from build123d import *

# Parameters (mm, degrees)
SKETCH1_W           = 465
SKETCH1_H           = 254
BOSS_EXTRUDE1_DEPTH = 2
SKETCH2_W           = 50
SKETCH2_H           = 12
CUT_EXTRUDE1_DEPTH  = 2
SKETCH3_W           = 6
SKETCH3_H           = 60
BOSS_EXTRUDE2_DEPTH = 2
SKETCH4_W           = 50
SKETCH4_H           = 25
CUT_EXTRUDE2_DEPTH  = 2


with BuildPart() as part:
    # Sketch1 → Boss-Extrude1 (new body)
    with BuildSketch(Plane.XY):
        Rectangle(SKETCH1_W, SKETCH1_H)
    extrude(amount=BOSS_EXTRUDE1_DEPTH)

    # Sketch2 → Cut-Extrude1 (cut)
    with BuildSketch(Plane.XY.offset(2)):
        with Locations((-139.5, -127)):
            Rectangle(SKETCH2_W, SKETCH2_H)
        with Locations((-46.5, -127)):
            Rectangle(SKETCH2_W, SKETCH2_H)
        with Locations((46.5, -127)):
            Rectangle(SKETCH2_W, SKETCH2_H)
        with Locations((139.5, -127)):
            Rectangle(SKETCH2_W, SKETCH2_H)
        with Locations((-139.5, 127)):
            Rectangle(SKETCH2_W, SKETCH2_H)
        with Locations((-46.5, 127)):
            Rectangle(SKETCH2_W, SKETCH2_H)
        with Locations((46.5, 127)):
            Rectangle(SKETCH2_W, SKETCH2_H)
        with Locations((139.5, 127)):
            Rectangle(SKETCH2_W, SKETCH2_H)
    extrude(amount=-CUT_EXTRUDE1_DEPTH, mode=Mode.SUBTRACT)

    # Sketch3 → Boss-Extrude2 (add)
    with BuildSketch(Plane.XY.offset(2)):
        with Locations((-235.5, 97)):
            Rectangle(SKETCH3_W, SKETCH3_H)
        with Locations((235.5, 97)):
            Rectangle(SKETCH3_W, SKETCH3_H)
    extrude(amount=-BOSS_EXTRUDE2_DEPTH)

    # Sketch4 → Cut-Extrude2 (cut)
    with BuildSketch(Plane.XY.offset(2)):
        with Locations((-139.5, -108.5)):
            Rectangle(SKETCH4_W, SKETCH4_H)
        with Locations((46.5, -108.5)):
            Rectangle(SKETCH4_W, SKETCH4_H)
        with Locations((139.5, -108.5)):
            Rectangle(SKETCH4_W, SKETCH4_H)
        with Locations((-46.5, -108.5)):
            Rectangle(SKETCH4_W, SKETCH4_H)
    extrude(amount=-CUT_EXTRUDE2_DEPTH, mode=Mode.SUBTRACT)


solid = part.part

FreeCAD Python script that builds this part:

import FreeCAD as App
import Part
import Sketcher
from FreeCAD import Vector


def add_polygon(sketch, points):
    """Adds a closed chain of lines whose ends are joined by coincident constraints."""
    first, n = sketch.GeometryCount, len(points)
    for a, b in zip(points, points[1:] + points[:1]):
        sketch.addGeometry(Part.LineSegment(App.Vector(*a, 0), App.Vector(*b, 0)), False)
    for i in range(n):
        sketch.addConstraint(Sketcher.Constraint("Coincident", first + i, 2, first + (i + 1) % n, 1))

doc = App.newDocument("Part")
params = doc.addObject("Spreadsheet::Sheet", "Params")
for row, (alias, value) in enumerate([
    ("sketch1_width", "465 mm"),
    ("sketch1_height", "254 mm"),
    ("pad1_length", "2 mm"),
    ("sketch2_width", "50 mm"),
    ("sketch2_height", "12 mm"),
    ("pocket1_length", "2 mm"),
    ("sketch3_width", "6 mm"),
    ("sketch3_height", "60 mm"),
    ("pad2_length", "2 mm"),
    ("sketch4_width", "50 mm"),
    ("sketch4_height", "25 mm"),
    ("pocket2_length", "2 mm"),
], start=1):
    params.set(f"A{row}", alias)
    params.set(f"B{row}", "=" + value)
    params.setAlias(f"B{row}", alias)

body = doc.addObject("PartDesign::Body", "Body")

# Sketch on XY plane
sketch1 = body.newObject("Sketcher::SketchObject", "Sketch")
sketch1.AttachmentSupport = (doc.getObject("XY_Plane"), [""])
sketch1.MapMode = "FlatFace"
add_polygon(sketch1, [(-232.5, 127), (-232.5, -127), (232.5, -127), (232.5, 127)])  # lines 0-3
sketch1.addConstraint([
    Sketcher.Constraint("Vertical", 0),
    Sketcher.Constraint("Horizontal", 1),
    Sketcher.Constraint("Vertical", 2),
    Sketcher.Constraint("Horizontal", 3),
    Sketcher.Constraint("Symmetric", 0, 2, 2, 2, -1, 1),
    Sketcher.Constraint("DistanceX", 1, 1, 1, 2, 465.0),
    Sketcher.Constraint("DistanceY", 0, 2, 0, 1, 254.0),
])
sketch1.setExpression("Constraints[9]", "Params.sketch1_width")
sketch1.setExpression("Constraints[10]", "Params.sketch1_height")
pad1 = body.newObject("PartDesign::Pad", "Pad")
pad1.Profile = sketch1
pad1.setExpression("Length", "Params.pad1_length")

# Sketch on XY plane
sketch2 = body.newObject("Sketcher::SketchObject", "Sketch001")
sketch2.AttachmentSupport = (doc.getObject("XY_Plane"), [""])
sketch2.MapMode = "FlatFace"
sketch2.AttachmentOffset = App.Placement(Vector(0, 0, 2), App.Rotation())
add_polygon(sketch2, [(-164.5, -121), (-164.5, -133), (-114.5, -133), (-114.5, -121)])  # lines 0-3
add_polygon(sketch2, [(-71.5, -121), (-71.5, -133), (-21.5, -133), (-21.5, -121)])  # lines 4-7
add_polygon(sketch2, [(21.5, -121), (21.5, -133), (71.5, -133), (71.5, -121)])  # lines 8-11
add_polygon(sketch2, [(114.5, -121), (114.5, -133), (164.5, -133), (164.5, -121)])  # lines 12-15
add_polygon(sketch2, [(-164.5, 133), (-164.5, 121), (-114.5, 121), (-114.5, 133)])  # lines 16-19
add_polygon(sketch2, [(-71.5, 133), (-71.5, 121), (-21.5, 121), (-21.5, 133)])  # lines 20-23
add_polygon(sketch2, [(21.5, 133), (21.5, 121), (71.5, 121), (71.5, 133)])  # lines 24-27
add_polygon(sketch2, [(114.5, 133), (114.5, 121), (164.5, 121), (164.5, 133)])  # lines 28-31
sketch2.addConstraint([
    Sketcher.Constraint("Vertical", 0),
    Sketcher.Constraint("Horizontal", 1),
    Sketcher.Constraint("Vertical", 2),
    Sketcher.Constraint("Horizontal", 3),
    Sketcher.Constraint("Vertical", 4),
    Sketcher.Constraint("Horizontal", 5),
    Sketcher.Constraint("Vertical", 6),
    Sketcher.Constraint("Horizontal", 7),
    Sketcher.Constraint("Vertical", 8),
    Sketcher.Constraint("Horizontal", 9),
    Sketcher.Constraint("Vertical", 10),
    Sketcher.Constraint("Horizontal", 11),
    Sketcher.Constraint("Vertical", 12),
    Sketcher.Constraint("Horizontal", 13),
    Sketcher.Constraint("Vertical", 14),
    Sketcher.Constraint("Horizontal", 15),
    Sketcher.Constraint("Vertical", 16),
    Sketcher.Constraint("Horizontal", 17),
    Sketcher.Constraint("Vertical", 18),
    Sketcher.Constraint("Horizontal", 19),
    Sketcher.Constraint("Vertical", 20),
    Sketcher.Constraint("Horizontal", 21),
    Sketcher.Constraint("Vertical", 22),
    Sketcher.Constraint("Horizontal", 23),
    Sketcher.Constraint("Vertical", 24),
    Sketcher.Constraint("Horizontal", 25),
    Sketcher.Constraint("Vertical", 26),
    Sketcher.Constraint("Horizontal", 27),
    Sketcher.Constraint("Vertical", 28),
    Sketcher.Constraint("Horizontal", 29),
    Sketcher.Constraint("Vertical", 30),
    Sketcher.Constraint("Horizontal", 31),
    Sketcher.Constraint("Symmetric", 14, 2, 16, 2, -1, 1),
    Sketcher.Constraint("Symmetric", 12, 2, 18, 2, -1, 1),
    Sketcher.Constraint("Symmetric", 10, 2, 20, 2, -1, 1),
    Sketcher.Constraint("Symmetric", 8, 2, 22, 2, -1, 1),
    Sketcher.Constraint("Symmetric", 6, 2, 24, 2, -1, 1),
    Sketcher.Constraint("Symmetric", 4, 2, 26, 2, -1, 1),
    Sketcher.Constraint("Symmetric", 2, 2, 28, 2, -1, 1),
    Sketcher.Constraint("Symmetric", 0, 2, 30, 2, -1, 1),
    Sketcher.Constraint("Symmetric", 5, 2, 8, 2, -2),
    Sketcher.Constraint("Symmetric", 7, 2, 10, 2, -2),
    Sketcher.Constraint("Symmetric", 1, 2, 12, 2, -2),
    Sketcher.Constraint("Symmetric", 3, 2, 14, 2, -2),
    Sketcher.Constraint("Horizontal", 1, 2, 4, 2),
    Sketcher.Constraint("Horizontal", 3, 2, 6, 2),
    Sketcher.Constraint("Equal", 3, 5),
    Sketcher.Constraint("DistanceX", 1, 1, 1, 2, 50.0),
    Sketcher.Constraint("DistanceY", 0, 2, 0, 1, 12.0),
    Sketcher.Constraint("DistanceY", 0, 2, -1, 1, 133.0),
    Sketcher.Constraint("DistanceX", 1, 2, 4, 2, 43.0),
    Sketcher.Constraint("DistanceX", 5, 2, 8, 2, 43.0),
])
sketch2.setExpression("Constraints[79]", "Params.sketch2_width")
sketch2.setExpression("Constraints[80]", "Params.sketch2_height")
pocket1 = body.newObject("PartDesign::Pocket", "Pocket")
pocket1.Profile = sketch2
pocket1.setExpression("Length", "Params.pocket1_length")

# Sketch on XY plane
sketch3 = body.newObject("Sketcher::SketchObject", "Sketch002")
sketch3.AttachmentSupport = (doc.getObject("XY_Plane"), [""])
sketch3.MapMode = "FlatFace"
sketch3.AttachmentOffset = App.Placement(Vector(0, 0, 2), App.Rotation())
add_polygon(sketch3, [(-238.5, 127), (-238.5, 67), (-232.5, 67), (-232.5, 127)])  # lines 0-3
add_polygon(sketch3, [(232.5, 127), (232.5, 67), (238.5, 67), (238.5, 127)])  # lines 4-7
sketch3.addConstraint([
    Sketcher.Constraint("Vertical", 0),
    Sketcher.Constraint("Horizontal", 1),
    Sketcher.Constraint("Vertical", 2),
    Sketcher.Constraint("Horizontal", 3),
    Sketcher.Constraint("Vertical", 4),
    Sketcher.Constraint("Horizontal", 5),
    Sketcher.Constraint("Vertical", 6),
    Sketcher.Constraint("Horizontal", 7),
    Sketcher.Constraint("Symmetric", 1, 2, 4, 2, -2),
    Sketcher.Constraint("Symmetric", 3, 2, 6, 2, -2),
    Sketcher.Constraint("DistanceX", 1, 1, 1, 2, 6.0),
    Sketcher.Constraint("DistanceY", 0, 2, 0, 1, 60.0),
    Sketcher.Constraint("DistanceY", -1, 1, 0, 2, 67.0),
    Sketcher.Constraint("DistanceX", 1, 2, 4, 2, 465.0),
])
sketch3.setExpression("Constraints[18]", "Params.sketch3_width")
sketch3.setExpression("Constraints[19]", "Params.sketch3_height")
pad2 = body.newObject("PartDesign::Pad", "Pad001")
pad2.Profile = sketch3
pad2.setExpression("Length", "Params.pad2_length")
pad2.Reversed = True

# Sketch on XY plane
sketch4 = body.newObject("Sketcher::SketchObject", "Sketch003")
sketch4.AttachmentSupport = (doc.getObject("XY_Plane"), [""])
sketch4.MapMode = "FlatFace"
sketch4.AttachmentOffset = App.Placement(Vector(0, 0, 2), App.Rotation())
add_polygon(sketch4, [(-164.5, -96), (-164.5, -121), (-114.5, -121), (-114.5, -96)])  # lines 0-3
add_polygon(sketch4, [(21.5, -96), (21.5, -121), (71.5, -121), (71.5, -96)])  # lines 4-7
add_polygon(sketch4, [(114.5, -96), (114.5, -121), (164.5, -121), (164.5, -96)])  # lines 8-11
add_polygon(sketch4, [(-71.5, -96), (-71.5, -121), (-21.5, -121), (-21.5, -96)])  # lines 12-15
sketch4.addConstraint([
    Sketcher.Constraint("Vertical", 0),
    Sketcher.Constraint("Horizontal", 1),
    Sketcher.Constraint("Vertical", 2),
    Sketcher.Constraint("Horizontal", 3),
    Sketcher.Constraint("Vertical", 4),
    Sketcher.Constraint("Horizontal", 5),
    Sketcher.Constraint("Vertical", 6),
    Sketcher.Constraint("Horizontal", 7),
    Sketcher.Constraint("Vertical", 8),
    Sketcher.Constraint("Horizontal", 9),
    Sketcher.Constraint("Vertical", 10),
    Sketcher.Constraint("Horizontal", 11),
    Sketcher.Constraint("Vertical", 12),
    Sketcher.Constraint("Horizontal", 13),
    Sketcher.Constraint("Vertical", 14),
    Sketcher.Constraint("Horizontal", 15),
    Sketcher.Constraint("Symmetric", 1, 2, 8, 2, -2),
    Sketcher.Constraint("Symmetric", 3, 2, 10, 2, -2),
    Sketcher.Constraint("Symmetric", 5, 2, 12, 2, -2),
    Sketcher.Constraint("Symmetric", 7, 2, 14, 2, -2),
    Sketcher.Constraint("Horizontal", 1, 2, 4, 2),
    Sketcher.Constraint("Horizontal", 3, 2, 6, 2),
    Sketcher.Constraint("Equal", 3, 5),
    Sketcher.Constraint("DistanceX", 1, 1, 1, 2, 50.0),
    Sketcher.Constraint("DistanceY", 0, 2, 0, 1, 25.0),
    Sketcher.Constraint("DistanceY", 0, 2, -1, 1, 121.0),
    Sketcher.Constraint("DistanceX", 1, 2, 4, 2, 136.0),
    Sketcher.Constraint("DistanceX", 5, 2, 8, 2, 43.0),
])
sketch4.setExpression("Constraints[39]", "Params.sketch4_width")
sketch4.setExpression("Constraints[40]", "Params.sketch4_height")
pocket2 = body.newObject("PartDesign::Pocket", "Pocket001")
pocket2.Profile = sketch4
pocket2.setExpression("Length", "Params.pocket2_length")

doc.recompute()
